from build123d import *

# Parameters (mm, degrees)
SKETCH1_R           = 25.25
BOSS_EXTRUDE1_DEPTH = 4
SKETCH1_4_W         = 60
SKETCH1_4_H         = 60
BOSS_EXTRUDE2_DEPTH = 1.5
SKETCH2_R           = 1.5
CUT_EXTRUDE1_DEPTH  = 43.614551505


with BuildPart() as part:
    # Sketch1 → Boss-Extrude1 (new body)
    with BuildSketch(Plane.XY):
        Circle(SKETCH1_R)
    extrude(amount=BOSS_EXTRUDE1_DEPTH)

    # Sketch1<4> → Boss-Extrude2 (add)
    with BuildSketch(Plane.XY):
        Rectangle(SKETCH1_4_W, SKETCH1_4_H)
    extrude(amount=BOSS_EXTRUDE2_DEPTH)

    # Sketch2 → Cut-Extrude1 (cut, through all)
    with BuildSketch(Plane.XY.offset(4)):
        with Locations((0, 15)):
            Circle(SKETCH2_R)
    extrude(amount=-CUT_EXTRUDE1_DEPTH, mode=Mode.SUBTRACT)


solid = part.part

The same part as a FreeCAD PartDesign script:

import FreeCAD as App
import Part
import Sketcher

V = App.Vector

doc = App.newDocument("Part")
body = doc.addObject("PartDesign::Body", "Body")

# Sketch on XY plane
sketch1 = body.newObject("Sketcher::SketchObject", "Sketch")
sketch1.AttachmentSupport = (doc.getObject("XY_Plane"), [""])
sketch1.MapMode = "FlatFace"
sketch1.addGeometry(Part.Circle(V(0, 0, 0), V(0, 0, 1), 25), False)
sketch1.addConstraint([
    Sketcher.Constraint("Coincident", 0, 3, -1, 1),
    Sketcher.Constraint("Diameter", 0, 50.5),
])
pad1 = body.newObject("PartDesign::Pad", "Pad")
pad1.Profile = sketch1
pad1.Length = 4

# Sketch on XY plane
sketch2 = body.newObject("Sketcher::SketchObject", "Sketch001")
sketch2.AttachmentSupport = (doc.getObject("XY_Plane"), [""])
sketch2.MapMode = "FlatFace"
sketch2.addGeometry([
    Part.LineSegment(V(-30, 30, 0), V(-30, -30, 0)),
    Part.LineSegment(V(-30, -30, 0), V(30, -30, 0)),
    Part.LineSegment(V(30, -30, 0), V(30, 30, 0)),
    Part.LineSegment(V(30, 30, 0), V(-30, 30, 0)),
], False)
sketch2.addConstraint([
    Sketcher.Constraint("Coincident", 0, 2, 1, 1),
    Sketcher.Constraint("Coincident", 1, 2, 2, 1),
    Sketcher.Constraint("Coincident", 2, 2, 3, 1),
    Sketcher.Constraint("Coincident", 3, 2, 0, 1),
    Sketcher.Constraint("Vertical", 0),
    Sketcher.Constraint("Horizontal", 1),
    Sketcher.Constraint("Vertical", 2),
    Sketcher.Constraint("Horizontal", 3),
    Sketcher.Constraint("Symmetric", 0, 2, 2, 2, -1, 1),
    Sketcher.Constraint("Equal", 3, 0),
    Sketcher.Constraint("DistanceX", 1, 1, 1, 2, 60.0),
])
pad2 = body.newObject("PartDesign::Pad", "Pad001")
pad2.Profile = sketch2
pad2.Length = 1.5

# Sketch on XY plane
sketch3 = body.newObject("Sketcher::SketchObject", "Sketch002")
sketch3.AttachmentSupport = (doc.getObject("XY_Plane"), [""])
sketch3.MapMode = "FlatFace"
sketch3.AttachmentOffset = App.Placement(V(0, 0, 4), App.Rotation())
sketch3.addGeometry(Part.Circle(V(0, 15, 0), V(0, 0, 1), 1.5), False)
sketch3.addConstraint([
    Sketcher.Constraint("PointOnObject", 0, 3, -2),
    Sketcher.Constraint("Diameter", 0, 3.0),
    Sketcher.Constraint("DistanceY", -1, 1, 0, 3, 15.0),
])
pocket1 = body.newObject("PartDesign::Pocket", "Pocket")
pocket1.Profile = sketch3
pocket1.Type = "ThroughAll"

doc.recompute()
